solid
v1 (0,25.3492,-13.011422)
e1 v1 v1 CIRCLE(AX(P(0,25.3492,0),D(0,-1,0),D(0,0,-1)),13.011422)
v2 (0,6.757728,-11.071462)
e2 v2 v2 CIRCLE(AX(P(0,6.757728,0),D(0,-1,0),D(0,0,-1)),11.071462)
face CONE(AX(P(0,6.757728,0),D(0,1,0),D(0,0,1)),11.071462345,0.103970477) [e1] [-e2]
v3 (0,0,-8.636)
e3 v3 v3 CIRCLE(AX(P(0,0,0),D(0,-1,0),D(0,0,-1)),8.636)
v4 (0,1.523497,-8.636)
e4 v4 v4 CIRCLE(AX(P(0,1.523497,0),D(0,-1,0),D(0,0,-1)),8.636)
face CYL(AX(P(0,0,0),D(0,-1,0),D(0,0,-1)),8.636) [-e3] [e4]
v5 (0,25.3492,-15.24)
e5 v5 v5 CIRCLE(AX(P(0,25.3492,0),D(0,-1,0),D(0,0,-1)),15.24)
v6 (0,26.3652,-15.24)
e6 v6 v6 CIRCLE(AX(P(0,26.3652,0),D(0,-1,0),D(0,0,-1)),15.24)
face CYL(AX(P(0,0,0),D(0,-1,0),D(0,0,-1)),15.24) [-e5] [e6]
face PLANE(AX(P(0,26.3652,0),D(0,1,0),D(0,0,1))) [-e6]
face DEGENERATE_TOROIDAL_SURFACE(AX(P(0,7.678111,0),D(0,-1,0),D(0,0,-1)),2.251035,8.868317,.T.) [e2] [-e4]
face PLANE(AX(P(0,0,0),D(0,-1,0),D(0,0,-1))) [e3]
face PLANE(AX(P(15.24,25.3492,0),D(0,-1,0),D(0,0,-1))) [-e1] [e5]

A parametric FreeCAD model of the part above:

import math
import FreeCAD as App
import Part
import Sketcher
Q = App.Units.Quantity

doc = App.newDocument("Part")
body = doc.addObject("PartDesign::Body", "Body")

sketch1 = doc.addObject("Sketcher::SketchObject", "Sketch")
body.addObject(sketch1)
sketch1.AttachmentSupport = (doc.XY_Plane, [""])
sketch1.MapMode = "FlatFace"
sketch1.addGeometry(Part.LineSegment(App.Vector(0, 26.4, 0), App.Vector(0, 0, 0)), False)
sketch1.addGeometry(Part.LineSegment(App.Vector(0, 0, 0), App.Vector(8.6, 0, 0)), False)
sketch1.addGeometry(Part.LineSegment(App.Vector(8.6, 0, 0), App.Vector(8.6, 1.5, 0)), False)
sketch1.addGeometry(Part.ArcOfCircle(Part.Circle(App.Vector(2.3, 7.7, 0), App.Vector(0, 0, 1), 8.9), math.radians(-44), math.radians(-6)), False)
sketch1.addGeometry(Part.LineSegment(App.Vector(11.1, 6.8, 0), App.Vector(13, 25.3, 0)), False)
sketch1.addGeometry(Part.LineSegment(App.Vector(13, 25.3, 0), App.Vector(15.2, 25.3, 0)), False)
sketch1.addGeometry(Part.LineSegment(App.Vector(15.2, 25.3, 0), App.Vector(15.2, 26.4, 0)), False)
sketch1.addGeometry(Part.LineSegment(App.Vector(15.2, 26.4, 0), App.Vector(0, 26.4, 0)), False)
sketch1.addConstraint(Sketcher.Constraint("Coincident", 0, 2, 1, 1))
sketch1.addConstraint(Sketcher.Constraint("Coincident", 1, 2, 2, 1))
sketch1.addConstraint(Sketcher.Constraint("Coincident", 2, 2, 3, 1))
sketch1.addConstraint(Sketcher.Constraint("Tangent", 3, 2, 4, 1))
sketch1.addConstraint(Sketcher.Constraint("Coincident", 4, 2, 5, 1))
sketch1.addConstraint(Sketcher.Constraint("Coincident", 5, 2, 6, 1))
sketch1.addConstraint(Sketcher.Constraint("Coincident", 6, 2, 7, 1))
sketch1.addConstraint(Sketcher.Constraint("Coincident", 7, 2, 0, 1))
sketch1.addConstraint(Sketcher.Constraint("Vertical", 0))
sketch1.addConstraint(Sketcher.Constraint("Horizontal", 1))
sketch1.addConstraint(Sketcher.Constraint("Vertical", 2))
sketch1.addConstraint(Sketcher.Constraint("Horizontal", 5))
sketch1.addConstraint(Sketcher.Constraint("Vertical", 6))
sketch1.addConstraint(Sketcher.Constraint("Horizontal", 7))
sketch1.addConstraint(Sketcher.Constraint("Coincident", 0, 2, -1, 1))
sketch1.addConstraint(Sketcher.Constraint("DistanceX", 7, 2, 7, 1, Q("0.6 in")))
sketch1.addConstraint(Sketcher.Constraint("DistanceX", 1, 1, 1, 2, Q("0.34 in")))
sketch1.addConstraint(Sketcher.Constraint("DistanceY", 6, 1, 6, 2, Q("0.04 in")))
sketch1.addConstraint(Sketcher.Constraint("DistanceY", 0, 2, 0, 1, Q("1.038 in")))
sketch1.addConstraint(Sketcher.Constraint("Radius", 3, Q("8.868317 mm")))
sketch1.addConstraint(Sketcher.Constraint("DistanceX", 5, 1, 5, 2, Q("2.228578 mm")))
sketch1.addConstraint(Sketcher.Constraint("DistanceY", 2, 1, 2, 2, Q("1.523497 mm")))
sketch1.addConstraint(Sketcher.Constraint("DistanceY", -1, 1, 3, 3, Q("7.678111 mm")))
revolution = doc.addObject("PartDesign::Revolution", "Revolution")
body.addObject(revolution)
revolution.Profile = sketch1
revolution.ReferenceAxis = (sketch1, ["V_Axis"])
revolution.Angle = 360

doc.recompute()
